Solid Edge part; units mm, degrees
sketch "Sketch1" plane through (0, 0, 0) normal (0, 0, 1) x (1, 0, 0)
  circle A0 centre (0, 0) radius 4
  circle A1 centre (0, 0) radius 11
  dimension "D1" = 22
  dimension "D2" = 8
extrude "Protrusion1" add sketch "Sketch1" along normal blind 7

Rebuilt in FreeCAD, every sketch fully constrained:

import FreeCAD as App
import Part
import Sketcher

doc = App.newDocument("Part")
body = doc.addObject("PartDesign::Body", "Body")

# Sketch on XY plane
sketch1 = body.newObject("Sketcher::SketchObject", "Sketch")
sketch1.AttachmentSupport = (doc.getObject("XY_Plane"), [""])
sketch1.MapMode = "FlatFace"
sketch1.addGeometry([
    Part.Circle(App.Vector(0, 0, 0), App.Vector(0, 0, 1), 11),
    Part.Circle(App.Vector(0, 0, 0), App.Vector(0, 0, 1), 4),
], False)
sketch1.addConstraint([
    Sketcher.Constraint("Coincident", 0, 3, -1, 1),
    Sketcher.Constraint("Coincident", 1, 3, -1, 1),
    Sketcher.Constraint("Diameter", 0, 22.0),
    Sketcher.Constraint("Diameter", 1, 8.0),
])
pad1 = body.newObject("PartDesign::Pad", "Pad")
pad1.Profile = sketch1
pad1.Length = 7

doc.recompute()
